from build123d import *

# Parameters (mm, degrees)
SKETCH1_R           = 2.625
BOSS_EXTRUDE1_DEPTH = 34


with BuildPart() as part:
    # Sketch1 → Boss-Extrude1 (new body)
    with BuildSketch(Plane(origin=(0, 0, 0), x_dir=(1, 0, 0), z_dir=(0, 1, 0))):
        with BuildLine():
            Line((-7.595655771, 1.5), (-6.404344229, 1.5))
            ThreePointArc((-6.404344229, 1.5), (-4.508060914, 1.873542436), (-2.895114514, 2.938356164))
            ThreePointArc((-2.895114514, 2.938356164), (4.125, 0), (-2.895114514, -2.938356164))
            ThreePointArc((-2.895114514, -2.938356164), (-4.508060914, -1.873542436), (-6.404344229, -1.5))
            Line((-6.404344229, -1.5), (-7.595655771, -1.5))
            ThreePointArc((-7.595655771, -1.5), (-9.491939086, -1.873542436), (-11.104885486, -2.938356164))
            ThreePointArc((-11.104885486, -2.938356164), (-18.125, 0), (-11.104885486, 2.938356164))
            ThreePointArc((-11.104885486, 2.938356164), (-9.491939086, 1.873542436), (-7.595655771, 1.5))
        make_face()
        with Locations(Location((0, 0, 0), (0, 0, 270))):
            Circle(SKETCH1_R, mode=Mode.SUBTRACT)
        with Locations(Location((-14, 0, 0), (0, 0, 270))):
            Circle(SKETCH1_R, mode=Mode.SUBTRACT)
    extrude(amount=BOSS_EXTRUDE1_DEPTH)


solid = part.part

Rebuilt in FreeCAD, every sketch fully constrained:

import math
import FreeCAD as App
import Part
import Sketcher

V = App.Vector
Q = App.Units.Quantity

doc = App.newDocument("Part")
body = doc.addObject("PartDesign::Body", "Body")

sketch1 = body.newObject("Sketcher::SketchObject", "Sketch")
sketch1.AttachmentSupport = (doc.getObject("XZ_Plane"), [""])
sketch1.MapMode = "FlatFace"
sketch1.addGeometry([
    Part.LineSegment(V(-6.4, -1.5, 0), V(-7.6, -1.5, 0)),
    Part.ArcOfCircle(Part.Circle(V(-7.6, -6.5, 0), V(0, 0, 1), 5), math.radians(90), math.radians(135)),
    Part.ArcOfCircle(Part.Circle(V(-14, 0, 0), V(0, 0, 1), 4.1), math.radians(45), math.radians(315)),
    Part.ArcOfCircle(Part.Circle(V(-7.6, 6.5, 0), V(0, 0, 1), 5), math.radians(-135), math.radians(-90)),
    Part.LineSegment(V(-7.6, 1.5, 0), V(-6.4, 1.5, 0)),
    Part.ArcOfCircle(Part.Circle(V(-6.4, 6.5, 0), V(0, 0, 1), 5), math.radians(-90), math.radians(-45)),
    Part.ArcOfCircle(Part.Circle(V(0, 0, 0), V(0, 0, 1), 4.1), math.radians(-135), math.radians(135)),
    Part.ArcOfCircle(Part.Circle(V(-6.4, -6.5, 0), V(0, 0, 1), 5), math.radians(45), math.radians(90)),
    Part.Circle(V(0, 0, 0), V(0, 0, 1), 2.6),
    Part.Circle(V(-14, 0, 0), V(0, 0, 1), 2.6),
], False)
sketch1.addConstraint([
    Sketcher.Constraint("Tangent", 0, 2, 1, 1),
    Sketcher.Constraint("Tangent", 1, 2, 2, 2),
    Sketcher.Constraint("Tangent", 2, 1, 3, 1),
    Sketcher.Constraint("Tangent", 3, 2, 4, 1),
    Sketcher.Constraint("Tangent", 4, 2, 5, 1),
    Sketcher.Constraint("Tangent", 5, 2, 6, 2),
    Sketcher.Constraint("Tangent", 6, 1, 7, 1),
    Sketcher.Constraint("Tangent", 7, 2, 0, 1),
    Sketcher.Constraint("Horizontal", 0),
    Sketcher.Constraint("Horizontal", 4),
    Sketcher.Constraint("Coincident", 6, 3, -1, 1),
    Sketcher.Constraint("Coincident", 8, 3, -1, 1),
    Sketcher.Constraint("Coincident", 9, 3, 2, 3),
    Sketcher.Constraint("Equal", 1, 3),
    Sketcher.Constraint("Equal", 3, 5),
    Sketcher.Constraint("Equal", 2, 6),
    Sketcher.Constraint("Equal", 5, 7),
    Sketcher.Constraint("Equal", 8, 9),
    Sketcher.Constraint("Symmetric", 1, 3, 3, 3, -1),
    Sketcher.Constraint("Radius", 1, Q("5 mm")),
    Sketcher.Constraint("Diameter", 8, Q("5.25 mm")),
    Sketcher.Constraint("DistanceX", 2, 3, -1, 1, Q("14 mm")),
    Sketcher.Constraint("Radius", 2, Q("4.125 mm")),
    Sketcher.Constraint("DistanceY", 1, 3, 3, 3, Q("13 mm")),
])
pad1 = body.newObject("PartDesign::Pad", "Pad")
pad1.Profile = sketch1
pad1.Length = 34
pad1.Reversed = True

doc.recompute()
